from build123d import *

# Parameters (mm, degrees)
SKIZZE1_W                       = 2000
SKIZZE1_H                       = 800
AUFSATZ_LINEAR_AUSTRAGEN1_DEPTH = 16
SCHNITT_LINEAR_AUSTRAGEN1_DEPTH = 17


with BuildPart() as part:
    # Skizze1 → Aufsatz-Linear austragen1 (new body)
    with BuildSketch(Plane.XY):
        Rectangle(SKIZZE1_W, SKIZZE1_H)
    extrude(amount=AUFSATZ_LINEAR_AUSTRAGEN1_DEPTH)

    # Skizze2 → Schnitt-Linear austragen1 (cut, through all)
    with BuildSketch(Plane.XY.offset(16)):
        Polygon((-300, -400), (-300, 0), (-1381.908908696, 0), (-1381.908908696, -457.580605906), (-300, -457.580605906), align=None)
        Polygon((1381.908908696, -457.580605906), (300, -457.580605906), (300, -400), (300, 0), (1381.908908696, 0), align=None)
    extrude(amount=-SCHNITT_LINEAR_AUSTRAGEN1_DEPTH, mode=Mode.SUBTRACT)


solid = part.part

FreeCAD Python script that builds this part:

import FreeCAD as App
import Part
import Sketcher
Q = App.Units.Quantity

doc = App.newDocument("Part")
params = doc.addObject("Spreadsheet::Sheet", "Params")
for row, (alias, value) in enumerate([
    ("sketch1_width", "2000 mm"),
    ("sketch1_height", "800 mm"),
    ("pad1_length", "16 mm"),
], start=1):
    params.set(f"A{row}", alias)
    params.set(f"B{row}", "=" + value)
    params.setAlias(f"B{row}", alias)

body = doc.addObject("PartDesign::Body", "Body")

# Sketch on XY plane
sketch1 = doc.addObject("Sketcher::SketchObject", "Sketch")
body.addObject(sketch1)
sketch1.AttachmentSupport = (doc.XY_Plane, [""])
sketch1.MapMode = "FlatFace"
sketch1.addGeometry([
    Part.LineSegment(App.Vector(-1000, 400, 0), App.Vector(-1000, -400, 0)),
    Part.LineSegment(App.Vector(-1000, -400, 0), App.Vector(1000, -400, 0)),
    Part.LineSegment(App.Vector(1000, -400, 0), App.Vector(1000, 400, 0)),
    Part.LineSegment(App.Vector(1000, 400, 0), App.Vector(-1000, 400, 0)),
], False)
sketch1.addConstraint([
    Sketcher.Constraint("Coincident", 0, 2, 1, 1),
    Sketcher.Constraint("Coincident", 1, 2, 2, 1),
    Sketcher.Constraint("Coincident", 2, 2, 3, 1),
    Sketcher.Constraint("Coincident", 3, 2, 0, 1),
    Sketcher.Constraint("Vertical", 0),
    Sketcher.Constraint("Horizontal", 1),
    Sketcher.Constraint("Vertical", 2),
    Sketcher.Constraint("Horizontal", 3),
    Sketcher.Constraint("Symmetric", 0, 2, 2, 2, -1, 1),
    Sketcher.Constraint("DistanceX", 1, 1, 1, 2, Q("2000 mm")),
    Sketcher.Constraint("DistanceY", 0, 2, 0, 1, Q("800 mm")),
])
sketch1.setExpression("Constraints[9]", "Params.sketch1_width")
sketch1.setExpression("Constraints[10]", "Params.sketch1_height")
pad1 = doc.addObject("PartDesign::Pad", "Pad")
body.addObject(pad1)
pad1.Profile = sketch1
pad1.setExpression("Length", "Params.pad1_length")

# Sketch on XY plane
sketch2 = doc.addObject("Sketcher::SketchObject", "Sketch001")
body.addObject(sketch2)
sketch2.AttachmentSupport = (doc.XY_Plane, [""])
sketch2.MapMode = "FlatFace"
sketch2.AttachmentOffset = App.Placement(App.Vector(0, 0, 16), App.Rotation())
sketch2.addGeometry([
    Part.LineSegment(App.Vector(-300, 0, 0), App.Vector(-1382, 0, 0)),  # 0
    Part.LineSegment(App.Vector(-1382, 0, 0), App.Vector(-1382, -458, 0)),  # 1
    Part.LineSegment(App.Vector(-1382, -458, 0), App.Vector(-300, -458, 0)),  # 2
    Part.LineSegment(App.Vector(-300, -458, 0), App.Vector(-300, 0, 0)),  # 3
    Part.LineSegment(App.Vector(300, -458, 0), App.Vector(1382, -458, 0)),  # 4
    Part.LineSegment(App.Vector(1382, -458, 0), App.Vector(1382, 0, 0)),  # 5
    Part.LineSegment(App.Vector(1382, 0, 0), App.Vector(300, 0, 0)),  # 6
    Part.LineSegment(App.Vector(300, 0, 0), App.Vector(300, -458, 0)),  # 7
], False)
sketch2.addConstraint([
    Sketcher.Constraint("Coincident", 0, 2, 1, 1),
    Sketcher.Constraint("Coincident", 1, 2, 2, 1),
    Sketcher.Constraint("Coincident", 2, 2, 3, 1),
    Sketcher.Constraint("Coincident", 3, 2, 0, 1),
    Sketcher.Constraint("Coincident", 4, 2, 5, 1),
    Sketcher.Constraint("Coincident", 5, 2, 6, 1),
    Sketcher.Constraint("Coincident", 6, 2, 7, 1),
    Sketcher.Constraint("Coincident", 7, 2, 4, 1),
    Sketcher.Constraint("Horizontal", 0),
    Sketcher.Constraint("Vertical", 1),
    Sketcher.Constraint("Horizontal", 2),
    Sketcher.Constraint("Vertical", 3),
    Sketcher.Constraint("Horizontal", 4),
    Sketcher.Constraint("Vertical", 5),
    Sketcher.Constraint("Horizontal", 6),
    Sketcher.Constraint("Vertical", 7),
    Sketcher.Constraint("Symmetric", 0, 2, 5, 2, -1, 1),
    Sketcher.Constraint("Symmetric", 3, 2, 6, 2, -2),
    Sketcher.Constraint("Horizontal", 2, 2, 4, 2),
    Sketcher.Constraint("DistanceX", 2, 2, -1, 1, Q("300 mm")),
    Sketcher.Constraint("DistanceX", 0, 2, 0, 1, Q("1081.908909 mm")),
    Sketcher.Constraint("DistanceY", 1, 2, 1, 1, Q("457.580606 mm")),
])
pocket1 = doc.addObject("PartDesign::Pocket", "Pocket")
body.addObject(pocket1)
pocket1.Profile = sketch2
pocket1.Type = "ThroughAll"

doc.recompute()
